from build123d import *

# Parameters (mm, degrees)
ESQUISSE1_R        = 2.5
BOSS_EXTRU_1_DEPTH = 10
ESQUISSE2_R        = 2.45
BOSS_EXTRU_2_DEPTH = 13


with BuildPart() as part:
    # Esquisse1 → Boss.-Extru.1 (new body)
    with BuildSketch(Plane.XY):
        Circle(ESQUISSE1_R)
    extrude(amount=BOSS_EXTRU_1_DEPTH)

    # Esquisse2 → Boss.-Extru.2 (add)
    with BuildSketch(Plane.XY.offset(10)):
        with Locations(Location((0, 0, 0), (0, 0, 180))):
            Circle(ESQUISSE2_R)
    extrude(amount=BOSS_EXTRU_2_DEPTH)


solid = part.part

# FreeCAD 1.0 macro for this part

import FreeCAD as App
import Part
import Sketcher

doc = App.newDocument("Part")
body = doc.addObject("PartDesign::Body", "Body")

# Sketch on XY plane
sketch1 = body.newObject("Sketcher::SketchObject", "Sketch")
sketch1.AttachmentSupport = (doc.getObject("XY_Plane"), [""])
sketch1.MapMode = "FlatFace"
sketch1.addGeometry(Part.Circle(App.Vector(0, 0, 0), App.Vector(0, 0, 1), 2.5), False)
sketch1.addConstraint([
    Sketcher.Constraint("Coincident", 0, 3, -1, 1),
    Sketcher.Constraint("Diameter", 0, 5.0),
])
pad1 = body.newObject("PartDesign::Pad", "Pad")
pad1.Profile = sketch1
pad1.Length = 10

# Sketch on XY plane
sketch2 = body.newObject("Sketcher::SketchObject", "Sketch001")
sketch2.AttachmentSupport = (doc.getObject("XY_Plane"), [""])
sketch2.MapMode = "FlatFace"
sketch2.AttachmentOffset = App.Placement(App.Vector(0, 0, 10), App.Rotation())
sketch2.addGeometry(Part.Circle(App.Vector(0, 0, 0), App.Vector(0, 0, 1), 2.5), False)
sketch2.addConstraint([
    Sketcher.Constraint("Coincident", 0, 3, -1, 1),
    Sketcher.Constraint("Diameter", 0, 4.9),
])
pad2 = body.newObject("PartDesign::Pad", "Pad001")
pad2.Profile = sketch2
pad2.Length = 13

doc.recompute()
